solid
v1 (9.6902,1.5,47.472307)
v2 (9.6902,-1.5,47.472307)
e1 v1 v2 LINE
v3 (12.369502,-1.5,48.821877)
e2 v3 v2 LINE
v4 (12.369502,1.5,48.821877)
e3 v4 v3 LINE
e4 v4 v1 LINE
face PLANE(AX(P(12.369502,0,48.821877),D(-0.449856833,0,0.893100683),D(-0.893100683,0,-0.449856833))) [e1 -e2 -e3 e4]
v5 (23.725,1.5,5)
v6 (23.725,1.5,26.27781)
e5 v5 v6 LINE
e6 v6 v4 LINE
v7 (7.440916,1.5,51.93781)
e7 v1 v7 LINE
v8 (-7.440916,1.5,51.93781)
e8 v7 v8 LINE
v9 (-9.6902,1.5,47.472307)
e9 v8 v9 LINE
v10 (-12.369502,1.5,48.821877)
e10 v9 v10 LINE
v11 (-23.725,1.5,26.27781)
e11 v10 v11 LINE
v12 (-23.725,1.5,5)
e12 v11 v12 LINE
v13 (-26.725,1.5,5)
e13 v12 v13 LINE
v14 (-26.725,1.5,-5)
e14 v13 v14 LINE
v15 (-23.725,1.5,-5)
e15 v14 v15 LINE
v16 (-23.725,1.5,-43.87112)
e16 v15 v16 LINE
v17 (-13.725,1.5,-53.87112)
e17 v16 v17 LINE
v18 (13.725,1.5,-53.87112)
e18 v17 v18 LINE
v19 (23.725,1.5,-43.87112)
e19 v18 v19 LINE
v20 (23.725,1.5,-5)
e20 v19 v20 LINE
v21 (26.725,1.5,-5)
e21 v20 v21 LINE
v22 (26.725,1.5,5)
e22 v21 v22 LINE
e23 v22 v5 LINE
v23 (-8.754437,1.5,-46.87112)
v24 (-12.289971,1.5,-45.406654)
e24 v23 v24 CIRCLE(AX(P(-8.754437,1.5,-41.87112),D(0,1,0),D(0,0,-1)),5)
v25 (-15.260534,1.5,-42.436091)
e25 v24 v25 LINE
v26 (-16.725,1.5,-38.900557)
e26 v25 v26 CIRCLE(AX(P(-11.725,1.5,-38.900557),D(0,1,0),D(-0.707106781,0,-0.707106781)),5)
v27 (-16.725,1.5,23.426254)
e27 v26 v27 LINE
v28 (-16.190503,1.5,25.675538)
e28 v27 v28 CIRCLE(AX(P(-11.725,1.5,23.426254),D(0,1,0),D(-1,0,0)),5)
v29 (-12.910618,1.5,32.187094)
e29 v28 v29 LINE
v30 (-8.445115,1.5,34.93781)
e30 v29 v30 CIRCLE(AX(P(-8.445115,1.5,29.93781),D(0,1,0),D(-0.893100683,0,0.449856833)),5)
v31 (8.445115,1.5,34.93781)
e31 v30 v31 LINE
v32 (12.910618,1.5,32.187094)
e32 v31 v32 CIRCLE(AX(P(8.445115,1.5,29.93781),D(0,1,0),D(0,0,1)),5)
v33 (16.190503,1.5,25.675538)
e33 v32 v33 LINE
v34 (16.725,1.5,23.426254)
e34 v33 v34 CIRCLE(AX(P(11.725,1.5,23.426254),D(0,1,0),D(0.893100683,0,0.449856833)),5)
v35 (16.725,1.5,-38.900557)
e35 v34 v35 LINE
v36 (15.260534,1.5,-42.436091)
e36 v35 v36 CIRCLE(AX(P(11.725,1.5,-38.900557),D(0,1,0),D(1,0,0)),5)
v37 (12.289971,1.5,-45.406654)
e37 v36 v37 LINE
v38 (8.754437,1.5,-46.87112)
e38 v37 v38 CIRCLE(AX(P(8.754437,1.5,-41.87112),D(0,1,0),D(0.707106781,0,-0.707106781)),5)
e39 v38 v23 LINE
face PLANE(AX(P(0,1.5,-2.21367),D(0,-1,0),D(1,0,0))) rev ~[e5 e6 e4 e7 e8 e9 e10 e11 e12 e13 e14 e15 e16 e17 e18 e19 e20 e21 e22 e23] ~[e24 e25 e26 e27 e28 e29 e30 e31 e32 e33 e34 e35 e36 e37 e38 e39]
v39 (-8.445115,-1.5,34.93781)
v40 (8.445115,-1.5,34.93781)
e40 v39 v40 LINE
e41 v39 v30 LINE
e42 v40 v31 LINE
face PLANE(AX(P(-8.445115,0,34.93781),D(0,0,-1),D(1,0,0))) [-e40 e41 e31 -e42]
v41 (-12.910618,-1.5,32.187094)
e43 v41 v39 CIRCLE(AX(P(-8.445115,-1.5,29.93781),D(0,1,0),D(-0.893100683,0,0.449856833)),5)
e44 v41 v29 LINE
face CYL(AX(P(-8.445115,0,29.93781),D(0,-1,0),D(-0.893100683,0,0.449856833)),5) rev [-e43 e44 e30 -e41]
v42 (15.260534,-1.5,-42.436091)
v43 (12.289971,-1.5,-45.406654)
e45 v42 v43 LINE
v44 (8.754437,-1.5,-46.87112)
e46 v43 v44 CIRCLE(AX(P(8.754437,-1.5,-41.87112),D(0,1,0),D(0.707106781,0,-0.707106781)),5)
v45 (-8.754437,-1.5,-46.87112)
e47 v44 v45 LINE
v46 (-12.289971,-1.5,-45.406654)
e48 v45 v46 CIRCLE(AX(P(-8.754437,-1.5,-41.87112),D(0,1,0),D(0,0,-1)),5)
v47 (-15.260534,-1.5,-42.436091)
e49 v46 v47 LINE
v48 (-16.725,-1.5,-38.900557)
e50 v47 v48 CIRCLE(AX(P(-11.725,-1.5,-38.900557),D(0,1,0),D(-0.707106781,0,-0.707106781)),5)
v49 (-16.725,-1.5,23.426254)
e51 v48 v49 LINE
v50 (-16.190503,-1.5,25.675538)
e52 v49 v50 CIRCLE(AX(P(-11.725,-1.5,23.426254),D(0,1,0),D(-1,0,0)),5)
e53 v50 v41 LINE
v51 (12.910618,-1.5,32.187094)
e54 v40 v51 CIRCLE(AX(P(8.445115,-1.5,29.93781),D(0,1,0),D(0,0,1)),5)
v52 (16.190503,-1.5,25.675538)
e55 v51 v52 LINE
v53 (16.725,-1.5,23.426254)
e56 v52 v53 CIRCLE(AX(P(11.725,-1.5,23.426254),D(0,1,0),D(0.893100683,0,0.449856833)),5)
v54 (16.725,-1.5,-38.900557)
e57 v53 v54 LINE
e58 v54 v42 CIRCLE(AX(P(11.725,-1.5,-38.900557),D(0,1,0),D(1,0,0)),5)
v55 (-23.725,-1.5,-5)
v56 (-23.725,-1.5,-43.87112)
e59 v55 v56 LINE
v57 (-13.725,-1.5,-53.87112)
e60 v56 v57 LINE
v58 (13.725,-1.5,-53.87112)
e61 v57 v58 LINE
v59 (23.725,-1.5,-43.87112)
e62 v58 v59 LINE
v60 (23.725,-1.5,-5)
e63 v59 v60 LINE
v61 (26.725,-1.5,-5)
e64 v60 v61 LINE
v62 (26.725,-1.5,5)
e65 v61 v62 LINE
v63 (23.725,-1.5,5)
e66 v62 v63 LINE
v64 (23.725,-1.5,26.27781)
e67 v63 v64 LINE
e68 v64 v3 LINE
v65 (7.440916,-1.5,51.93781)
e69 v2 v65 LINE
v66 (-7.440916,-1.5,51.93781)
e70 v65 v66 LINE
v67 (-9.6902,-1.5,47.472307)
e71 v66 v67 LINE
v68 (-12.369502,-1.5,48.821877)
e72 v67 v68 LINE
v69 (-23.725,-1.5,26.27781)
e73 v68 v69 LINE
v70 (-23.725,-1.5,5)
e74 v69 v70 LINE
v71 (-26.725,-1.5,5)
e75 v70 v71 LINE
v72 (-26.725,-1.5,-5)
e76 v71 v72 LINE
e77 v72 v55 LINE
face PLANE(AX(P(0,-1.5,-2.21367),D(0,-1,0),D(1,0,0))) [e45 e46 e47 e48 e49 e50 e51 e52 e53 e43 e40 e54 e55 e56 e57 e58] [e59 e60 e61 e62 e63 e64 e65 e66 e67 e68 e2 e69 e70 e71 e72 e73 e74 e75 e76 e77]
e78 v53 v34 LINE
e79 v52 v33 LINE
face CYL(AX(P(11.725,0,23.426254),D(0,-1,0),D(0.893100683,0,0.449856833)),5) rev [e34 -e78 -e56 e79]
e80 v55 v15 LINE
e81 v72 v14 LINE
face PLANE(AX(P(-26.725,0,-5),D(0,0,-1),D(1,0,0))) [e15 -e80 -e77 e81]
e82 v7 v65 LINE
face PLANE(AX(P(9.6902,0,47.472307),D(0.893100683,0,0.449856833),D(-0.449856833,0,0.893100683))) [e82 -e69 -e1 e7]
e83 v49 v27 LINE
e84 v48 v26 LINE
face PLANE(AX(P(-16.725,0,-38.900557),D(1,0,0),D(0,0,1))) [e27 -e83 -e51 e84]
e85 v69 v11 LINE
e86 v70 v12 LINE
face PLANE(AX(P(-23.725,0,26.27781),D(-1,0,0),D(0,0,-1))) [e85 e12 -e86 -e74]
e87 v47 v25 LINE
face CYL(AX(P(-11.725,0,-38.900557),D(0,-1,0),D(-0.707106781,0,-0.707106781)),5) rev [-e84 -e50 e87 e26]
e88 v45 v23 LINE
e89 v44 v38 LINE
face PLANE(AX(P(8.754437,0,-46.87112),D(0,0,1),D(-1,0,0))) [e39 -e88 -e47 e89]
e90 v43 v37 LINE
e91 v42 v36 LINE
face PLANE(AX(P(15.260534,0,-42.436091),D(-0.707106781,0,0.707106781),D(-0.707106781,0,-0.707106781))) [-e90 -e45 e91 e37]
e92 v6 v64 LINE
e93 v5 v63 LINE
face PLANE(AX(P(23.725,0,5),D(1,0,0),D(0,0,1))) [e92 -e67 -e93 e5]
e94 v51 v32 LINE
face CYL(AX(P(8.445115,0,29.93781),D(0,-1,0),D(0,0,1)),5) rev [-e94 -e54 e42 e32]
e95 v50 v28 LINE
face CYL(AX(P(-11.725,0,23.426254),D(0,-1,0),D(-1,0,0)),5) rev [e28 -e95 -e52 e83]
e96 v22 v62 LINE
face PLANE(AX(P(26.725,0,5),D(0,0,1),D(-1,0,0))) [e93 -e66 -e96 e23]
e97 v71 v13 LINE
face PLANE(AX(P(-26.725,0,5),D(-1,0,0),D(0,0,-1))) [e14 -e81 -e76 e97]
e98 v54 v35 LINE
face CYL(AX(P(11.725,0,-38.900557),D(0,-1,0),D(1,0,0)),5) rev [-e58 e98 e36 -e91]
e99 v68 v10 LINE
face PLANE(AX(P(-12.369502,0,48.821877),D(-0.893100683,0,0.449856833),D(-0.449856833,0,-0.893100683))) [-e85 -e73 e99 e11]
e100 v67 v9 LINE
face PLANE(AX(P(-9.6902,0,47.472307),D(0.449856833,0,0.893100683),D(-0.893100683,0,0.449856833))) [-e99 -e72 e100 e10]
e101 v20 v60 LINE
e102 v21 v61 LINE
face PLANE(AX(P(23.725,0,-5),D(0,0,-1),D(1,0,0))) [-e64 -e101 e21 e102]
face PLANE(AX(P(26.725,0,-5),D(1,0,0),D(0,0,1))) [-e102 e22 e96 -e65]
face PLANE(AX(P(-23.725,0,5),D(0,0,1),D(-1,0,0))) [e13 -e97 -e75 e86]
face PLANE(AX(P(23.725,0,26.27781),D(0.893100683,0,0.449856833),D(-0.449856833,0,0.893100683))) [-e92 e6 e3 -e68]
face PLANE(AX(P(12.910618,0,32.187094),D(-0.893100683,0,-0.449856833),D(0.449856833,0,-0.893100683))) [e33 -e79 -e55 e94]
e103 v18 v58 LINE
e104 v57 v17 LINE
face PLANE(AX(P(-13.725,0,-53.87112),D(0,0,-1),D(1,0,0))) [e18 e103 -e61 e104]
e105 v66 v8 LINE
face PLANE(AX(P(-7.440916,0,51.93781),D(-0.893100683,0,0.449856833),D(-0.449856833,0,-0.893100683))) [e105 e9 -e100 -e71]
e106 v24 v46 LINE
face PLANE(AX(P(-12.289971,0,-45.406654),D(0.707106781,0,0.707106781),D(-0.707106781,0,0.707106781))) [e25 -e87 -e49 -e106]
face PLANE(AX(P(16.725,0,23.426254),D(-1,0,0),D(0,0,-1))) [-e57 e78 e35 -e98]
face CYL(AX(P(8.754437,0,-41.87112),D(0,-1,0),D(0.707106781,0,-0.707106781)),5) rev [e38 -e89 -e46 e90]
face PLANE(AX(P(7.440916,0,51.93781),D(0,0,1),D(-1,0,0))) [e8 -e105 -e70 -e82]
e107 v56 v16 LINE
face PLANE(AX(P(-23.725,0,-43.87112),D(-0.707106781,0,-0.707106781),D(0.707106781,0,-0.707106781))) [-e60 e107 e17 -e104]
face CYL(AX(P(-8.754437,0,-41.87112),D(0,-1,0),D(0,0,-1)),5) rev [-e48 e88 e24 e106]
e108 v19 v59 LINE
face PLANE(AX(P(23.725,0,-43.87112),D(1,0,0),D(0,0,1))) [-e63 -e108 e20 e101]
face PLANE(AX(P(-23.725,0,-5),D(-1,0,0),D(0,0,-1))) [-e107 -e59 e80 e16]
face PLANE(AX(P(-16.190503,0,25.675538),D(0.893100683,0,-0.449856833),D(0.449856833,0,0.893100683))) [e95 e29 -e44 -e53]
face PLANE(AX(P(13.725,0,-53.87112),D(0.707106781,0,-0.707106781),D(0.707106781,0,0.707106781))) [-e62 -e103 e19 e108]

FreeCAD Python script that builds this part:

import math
import FreeCAD as App
import Part
import Sketcher
from FreeCAD import Vector

doc = App.newDocument("Part")
body = doc.addObject("PartDesign::Body", "Body")

sketch1 = body.newObject("Sketcher::SketchObject", "Sketch")
sketch1.AttachmentSupport = (doc.getObject("XZ_Plane"), [""])
sketch1.MapMode = "FlatFace"
sketch1.addGeometry([
    Part.LineSegment(Vector(-13.7, -53.9, 0), Vector(13.7, -53.9, 0)),
    Part.LineSegment(Vector(13.7, -53.9, 0), Vector(23.7, -43.9, 0)),
    Part.LineSegment(Vector(23.7, -43.9, 0), Vector(23.7, -5, 0)),
    Part.LineSegment(Vector(23.7, -5, 0), Vector(26.7, -5, 0)),
    Part.LineSegment(Vector(26.7, -5, 0), Vector(26.7, 5, 0)),
    Part.LineSegment(Vector(26.7, 5, 0), Vector(23.7, 5, 0)),
    Part.LineSegment(Vector(23.7, 5, 0), Vector(23.7, 26.3, 0)),
    Part.LineSegment(Vector(23.7, 26.3, 0), Vector(12.4, 48.8, 0)),
    Part.LineSegment(Vector(12.4, 48.8, 0), Vector(9.7, 47.5, 0)),
    Part.LineSegment(Vector(9.7, 47.5, 0), Vector(7.4, 51.9, 0)),
    Part.LineSegment(Vector(7.4, 51.9, 0), Vector(-7.4, 51.9, 0)),
    Part.LineSegment(Vector(-7.4, 51.9, 0), Vector(-9.7, 47.5, 0)),
    Part.LineSegment(Vector(-9.7, 47.5, 0), Vector(-12.4, 48.8, 0)),
    Part.LineSegment(Vector(-12.4, 48.8, 0), Vector(-23.7, 26.3, 0)),
    Part.LineSegment(Vector(-23.7, 26.3, 0), Vector(-23.7, 5, 0)),
    Part.LineSegment(Vector(-23.7, 5, 0), Vector(-26.7, 5, 0)),
    Part.LineSegment(Vector(-26.7, 5, 0), Vector(-26.7, -5, 0)),
    Part.LineSegment(Vector(-26.7, -5, 0), Vector(-23.7, -5, 0)),
    Part.LineSegment(Vector(-23.7, -5, 0), Vector(-23.7, -43.9, 0)),
    Part.LineSegment(Vector(-23.7, -43.9, 0), Vector(-13.7, -53.9, 0)),
    Part.ArcOfCircle(Part.Circle(Vector(-8.8, -41.9, 0), Vector(0, 0, 1), 5), math.radians(-135), math.radians(-90)),
    Part.LineSegment(Vector(-12.3, -45.4, 0), Vector(-15.3, -42.4, 0)),
    Part.ArcOfCircle(Part.Circle(Vector(-11.7, -38.9, 0), Vector(0, 0, 1), 5), math.radians(180), math.radians(225)),
    Part.LineSegment(Vector(-16.7, -38.9, 0), Vector(-16.7, 23.4, 0)),
    Part.ArcOfCircle(Part.Circle(Vector(-11.7, 23.4, 0), Vector(0, 0, 1), 5), math.radians(153), math.radians(180)),
    Part.LineSegment(Vector(-16.2, 25.7, 0), Vector(-12.9, 32.2, 0)),
    Part.ArcOfCircle(Part.Circle(Vector(-8.4, 29.9, 0), Vector(0, 0, 1), 5), math.radians(90), math.radians(153)),
    Part.LineSegment(Vector(-8.4, 34.9, 0), Vector(8.4, 34.9, 0)),
    Part.ArcOfCircle(Part.Circle(Vector(8.4, 29.9, 0), Vector(0, 0, 1), 5), math.radians(27), math.radians(90)),
    Part.LineSegment(Vector(12.9, 32.2, 0), Vector(16.2, 25.7, 0)),
    Part.ArcOfCircle(Part.Circle(Vector(11.7, 23.4, 0), Vector(0, 0, 1), 5), math.radians(0), math.radians(27)),
    Part.LineSegment(Vector(16.7, 23.4, 0), Vector(16.7, -38.9, 0)),
    Part.ArcOfCircle(Part.Circle(Vector(11.7, -38.9, 0), Vector(0, 0, 1), 5), math.radians(-45), math.radians(0)),
    Part.LineSegment(Vector(15.3, -42.4, 0), Vector(12.3, -45.4, 0)),
    Part.ArcOfCircle(Part.Circle(Vector(8.8, -41.9, 0), Vector(0, 0, 1), 5), math.radians(-90), math.radians(-45)),
    Part.LineSegment(Vector(8.8, -46.9, 0), Vector(-8.8, -46.9, 0)),
], False)
sketch1.addConstraint([
    Sketcher.Constraint("Coincident", 0, 2, 1, 1),
    Sketcher.Constraint("Coincident", 1, 2, 2, 1),
    Sketcher.Constraint("Coincident", 2, 2, 3, 1),
    Sketcher.Constraint("Coincident", 3, 2, 4, 1),
    Sketcher.Constraint("Coincident", 4, 2, 5, 1),
    Sketcher.Constraint("Coincident", 5, 2, 6, 1),
    Sketcher.Constraint("Coincident", 6, 2, 7, 1),
    Sketcher.Constraint("Coincident", 7, 2, 8, 1),
    Sketcher.Constraint("Coincident", 8, 2, 9, 1),
    Sketcher.Constraint("Coincident", 9, 2, 10, 1),
    Sketcher.Constraint("Coincident", 10, 2, 11, 1),
    Sketcher.Constraint("Coincident", 11, 2, 12, 1),
    Sketcher.Constraint("Coincident", 12, 2, 13, 1),
    Sketcher.Constraint("Coincident", 13, 2, 14, 1),
    Sketcher.Constraint("Coincident", 14, 2, 15, 1),
    Sketcher.Constraint("Coincident", 15, 2, 16, 1),
    Sketcher.Constraint("Coincident", 16, 2, 17, 1),
    Sketcher.Constraint("Coincident", 17, 2, 18, 1),
    Sketcher.Constraint("Coincident", 18, 2, 19, 1),
    Sketcher.Constraint("Coincident", 19, 2, 0, 1),
    Sketcher.Constraint("Tangent", 20, 1, 21, 1),
    Sketcher.Constraint("Tangent", 21, 2, 22, 2),
    Sketcher.Constraint("Tangent", 22, 1, 23, 1),
    Sketcher.Constraint("Tangent", 23, 2, 24, 2),
    Sketcher.Constraint("Tangent", 24, 1, 25, 1),
    Sketcher.Constraint("Tangent", 25, 2, 26, 2),
    Sketcher.Constraint("Tangent", 26, 1, 27, 1),
    Sketcher.Constraint("Tangent", 27, 2, 28, 2),
    Sketcher.Constraint("Tangent", 28, 1, 29, 1),
    Sketcher.Constraint("Tangent", 29, 2, 30, 2),
    Sketcher.Constraint("Tangent", 30, 1, 31, 1),
    Sketcher.Constraint("Tangent", 31, 2, 32, 2),
    Sketcher.Constraint("Tangent", 32, 1, 33, 1),
    Sketcher.Constraint("Tangent", 33, 2, 34, 2),
    Sketcher.Constraint("Tangent", 34, 1, 35, 1),
    Sketcher.Constraint("Tangent", 35, 2, 20, 2),
    Sketcher.Constraint("Horizontal", 0),
    Sketcher.Constraint("Vertical", 2),
    Sketcher.Constraint("Horizontal", 3),
    Sketcher.Constraint("Vertical", 4),
    Sketcher.Constraint("Horizontal", 5),
    Sketcher.Constraint("Vertical", 6),
    Sketcher.Constraint("Horizontal", 10),
    Sketcher.Constraint("Vertical", 14),
    Sketcher.Constraint("Horizontal", 15),
    Sketcher.Constraint("Vertical", 16),
    Sketcher.Constraint("Horizontal", 17),
    Sketcher.Constraint("Vertical", 18),
    Sketcher.Constraint("Vertical", 23),
    Sketcher.Constraint("Horizontal", 27),
    Sketcher.Constraint("Vertical", 31),
    Sketcher.Constraint("Horizontal", 35),
    Sketcher.Constraint("Equal", 20, 22),
    Sketcher.Constraint("Equal", 22, 24),
    Sketcher.Constraint("Equal", 24, 26),
    Sketcher.Constraint("Equal", 26, 28),
    Sketcher.Constraint("Equal", 28, 30),
    Sketcher.Constraint("Equal", 30, 32),
    Sketcher.Constraint("Equal", 32, 34),
    Sketcher.Constraint("Symmetric", 2, 2, 14, 2, -1, 1),
    Sketcher.Constraint("Symmetric", 4, 2, 16, 2, -1, 1),
    Sketcher.Constraint("Symmetric", 24, 3, 30, 3, -2),
    Sketcher.Constraint("Symmetric", 8, 2, 11, 2, -2),
    Sketcher.Constraint("Symmetric", 7, 2, 12, 2, -2),
    Sketcher.Constraint("Symmetric", 6, 2, 13, 2, -2),
    Sketcher.Constraint("Symmetric", 2, 2, 17, 2, -2),
    Sketcher.Constraint("Symmetric", 21, 2, 32, 1, -2),
    Sketcher.Constraint("Perpendicular", 7, 8),
    Sketcher.Constraint("Perpendicular", 8, 9),
    Sketcher.Constraint("Perpendicular", 11, 12),
    Sketcher.Constraint("Perpendicular", 1, 19),
    Sketcher.Constraint("Parallel", 19, 21),
    Sketcher.Constraint("Parallel", 13, 25),
    Sketcher.Constraint("Parallel", 9, 29),
    Sketcher.Constraint("Perpendicular", 21, 33),
    Sketcher.Constraint("Horizontal", 1, 2, 18, 2),
    Sketcher.Constraint("Radius", 20, 5.0),
    Sketcher.Constraint("DistanceX", 3, 1, 3, 2, 3.0),
    Sketcher.Constraint("DistanceY", 4, 1, 4, 2, 10.0),
    Sketcher.Constraint("Distance", 8, 3.0),
    Sketcher.Constraint("Distance", 9, 5.0),
    Sketcher.Constraint("DistanceY", 0, 2, 34, 3, 12.0),
    Sketcher.Constraint("DistanceX", 32, 3, 0, 2, 2.0),
    Sketcher.Constraint("DistanceX", 32, 3, 1, 2, 12.0),
    Sketcher.Constraint("DistanceY", 28, 3, 9, 2, 22.0),
    Sketcher.Constraint("DistanceX", 0, 1, 0, 2, 27.45),
    Sketcher.Constraint("DistanceY", 6, 2, 28, 3, 3.66),
    Sketcher.Constraint("DistanceX", 27, 1, 27, 2, 16.890229),
    Sketcher.Constraint("DistanceY", 2, 1, 2, 2, 38.87112),
    Sketcher.Constraint("DistanceY", 6, 1, 6, 2, 21.27781),
    Sketcher.Constraint("DistanceY", 23, 1, 23, 2, 62.326812),
    Sketcher.Constraint("DistanceX", -1, 1, 8, 2, 9.6902),
])
pad1 = body.newObject("PartDesign::Pad", "Pad")
pad1.Profile = sketch1
pad1.Length = 3
pad1.Midplane = True

doc.recompute()
